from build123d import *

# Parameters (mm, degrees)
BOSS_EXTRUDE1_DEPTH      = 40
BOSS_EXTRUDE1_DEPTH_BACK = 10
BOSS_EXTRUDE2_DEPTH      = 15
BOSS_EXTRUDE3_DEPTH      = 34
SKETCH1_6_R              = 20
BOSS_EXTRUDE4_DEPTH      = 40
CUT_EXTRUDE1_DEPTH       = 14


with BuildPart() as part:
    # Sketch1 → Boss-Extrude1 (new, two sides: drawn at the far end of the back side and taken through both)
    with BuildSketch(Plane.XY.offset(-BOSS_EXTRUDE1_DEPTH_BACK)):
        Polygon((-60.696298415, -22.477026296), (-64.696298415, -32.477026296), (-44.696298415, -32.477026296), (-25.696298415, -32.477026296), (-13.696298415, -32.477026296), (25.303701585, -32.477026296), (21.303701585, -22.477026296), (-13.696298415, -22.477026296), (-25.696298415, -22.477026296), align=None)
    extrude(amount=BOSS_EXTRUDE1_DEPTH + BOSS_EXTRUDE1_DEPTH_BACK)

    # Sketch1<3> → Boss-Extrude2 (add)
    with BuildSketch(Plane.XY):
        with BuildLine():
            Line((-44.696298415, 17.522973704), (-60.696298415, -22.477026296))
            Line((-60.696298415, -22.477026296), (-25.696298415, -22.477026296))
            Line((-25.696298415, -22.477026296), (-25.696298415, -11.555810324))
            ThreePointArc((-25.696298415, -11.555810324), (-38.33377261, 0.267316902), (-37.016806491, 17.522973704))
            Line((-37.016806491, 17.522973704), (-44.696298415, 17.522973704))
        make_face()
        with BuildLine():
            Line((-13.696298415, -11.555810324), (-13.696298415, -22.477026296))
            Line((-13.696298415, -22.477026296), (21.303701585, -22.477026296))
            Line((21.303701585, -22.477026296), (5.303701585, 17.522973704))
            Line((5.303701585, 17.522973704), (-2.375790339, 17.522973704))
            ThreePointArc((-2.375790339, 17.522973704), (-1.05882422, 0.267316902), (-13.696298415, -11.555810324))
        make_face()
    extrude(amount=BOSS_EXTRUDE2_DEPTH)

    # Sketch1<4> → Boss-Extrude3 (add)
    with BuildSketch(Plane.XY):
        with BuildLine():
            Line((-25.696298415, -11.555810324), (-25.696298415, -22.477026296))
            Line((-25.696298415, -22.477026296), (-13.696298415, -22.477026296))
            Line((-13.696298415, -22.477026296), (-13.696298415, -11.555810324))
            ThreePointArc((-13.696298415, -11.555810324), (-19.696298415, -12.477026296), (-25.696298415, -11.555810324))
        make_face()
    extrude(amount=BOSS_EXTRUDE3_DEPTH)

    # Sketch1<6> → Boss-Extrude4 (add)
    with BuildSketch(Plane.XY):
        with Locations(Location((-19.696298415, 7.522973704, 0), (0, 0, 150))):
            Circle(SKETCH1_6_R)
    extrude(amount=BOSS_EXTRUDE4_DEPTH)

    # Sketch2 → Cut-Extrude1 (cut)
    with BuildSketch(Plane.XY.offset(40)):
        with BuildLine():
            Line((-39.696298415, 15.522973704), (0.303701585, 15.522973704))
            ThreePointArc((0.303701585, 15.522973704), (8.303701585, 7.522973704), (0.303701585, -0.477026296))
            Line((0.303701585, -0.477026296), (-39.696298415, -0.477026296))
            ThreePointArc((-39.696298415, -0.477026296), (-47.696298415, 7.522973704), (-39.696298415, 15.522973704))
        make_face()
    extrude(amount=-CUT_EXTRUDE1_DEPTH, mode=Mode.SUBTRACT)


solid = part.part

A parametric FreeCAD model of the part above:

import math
import FreeCAD as App
import Part
import Sketcher


def add_polygon(sketch, points):
    """Adds a closed chain of lines whose ends are joined by coincident constraints."""
    first, n = sketch.GeometryCount, len(points)
    for a, b in zip(points, points[1:] + points[:1]):
        sketch.addGeometry(Part.LineSegment(App.Vector(*a, 0), App.Vector(*b, 0)), False)
    for i in range(n):
        sketch.addConstraint(Sketcher.Constraint("Coincident", first + i, 2, first + (i + 1) % n, 1))

doc = App.newDocument("Part")
params = doc.addObject("Spreadsheet::Sheet", "Params")
for row, (alias, value) in enumerate([
    ("sketch1_width", "90 mm"),
    ("sketch1_width2", "82 mm"),
    ("pad1_length", "40 mm"),
    ("pad1_length2", "10 mm"),
    ("sketch2_radius", "20 mm"),
    ("sketch2_width", "35 mm"),
    ("sketch2_height", "10 mm"),
    ("pad2_length", "15 mm"),
    ("sketch3_radius", "20 mm"),
    ("sketch3_width", "12 mm"),
    ("pad3_length", "34 mm"),
    ("sketch4_diameter", "40 mm"),
    ("pad4_length", "40 mm"),
    ("sketch5_radius", "8 mm"),
    ("sketch5_width", "40 mm"),
    ("pocket1_length", "14 mm"),
], start=1):
    params.set(f"A{row}", alias)
    params.set(f"B{row}", "=" + value)
    params.setAlias(f"B{row}", alias)

body = doc.addObject("PartDesign::Body", "Body")

# Sketch on XY plane
sketch1 = doc.addObject("Sketcher::SketchObject", "Sketch")
body.addObject(sketch1)
sketch1.AttachmentSupport = (doc.XY_Plane, [""])
sketch1.MapMode = "FlatFace"
add_polygon(sketch1, [(-61, -22), (-65, -32), (25, -32), (21, -22)])  # lines 0-3
sketch1.addConstraint([
    Sketcher.Constraint("Horizontal", 1),
    Sketcher.Constraint("Horizontal", 3),
    Sketcher.Constraint("Equal", 0, 2),
    Sketcher.Constraint("DistanceX", 1, 1, 1, 2, 90.0),
    Sketcher.Constraint("DistanceX", 3, 2, 3, 1, 82.0),
    Sketcher.Constraint("DistanceY", 1, 2, 2, 2, 10.0),
    Sketcher.Constraint("DistanceX", 0, 2, -1, 1, 64.696298),
    Sketcher.Constraint("DistanceY", 0, 2, -1, 1, 32.477026),
])
sketch1.setExpression("Constraints[7]", "Params.sketch1_width")
sketch1.setExpression("Constraints[8]", "Params.sketch1_width2")
pad1 = doc.addObject("PartDesign::Pad", "Pad")
body.addObject(pad1)
pad1.Profile = sketch1
pad1.Type = "TwoLengths"
pad1.setExpression("Length", "Params.pad1_length")
pad1.setExpression("Length2", "Params.pad1_length2")

# Sketch on XY plane
sketch2 = doc.addObject("Sketcher::SketchObject", "Sketch001")
body.addObject(sketch2)
sketch2.AttachmentSupport = (doc.XY_Plane, [""])
sketch2.MapMode = "FlatFace"
sketch2.addGeometry([
    Part.LineSegment(App.Vector(-45, 18, 0), App.Vector(-61, -22, 0)),  # 0
    Part.LineSegment(App.Vector(-61, -22, 0), App.Vector(-26, -22, 0)),  # 1
    Part.LineSegment(App.Vector(-26, -22, 0), App.Vector(-26, -12, 0)),  # 2
    Part.ArcOfCircle(Part.Circle(App.Vector(-20, 8, 0), App.Vector(0, 0, 1), 20), math.radians(150), math.radians(253)),  # 3
    Part.LineSegment(App.Vector(-37, 18, 0), App.Vector(-45, 18, 0)),  # 4
    Part.LineSegment(App.Vector(-14, -12, 0), App.Vector(-14, -22, 0)),  # 5
    Part.LineSegment(App.Vector(-14, -22, 0), App.Vector(21, -22, 0)),  # 6
    Part.LineSegment(App.Vector(21, -22, 0), App.Vector(5, 18, 0)),  # 7
    Part.LineSegment(App.Vector(5, 18, 0), App.Vector(-2, 18, 0)),  # 8
    Part.ArcOfCircle(Part.Circle(App.Vector(-20, 8, 0), App.Vector(0, 0, 1), 20), math.radians(-73), math.radians(30)),  # 9
], False)
sketch2.addConstraint([
    Sketcher.Constraint("Coincident", 0, 2, 1, 1),
    Sketcher.Constraint("Coincident", 1, 2, 2, 1),
    Sketcher.Constraint("Coincident", 2, 2, 3, 2),
    Sketcher.Constraint("Coincident", 3, 1, 4, 1),
    Sketcher.Constraint("Coincident", 4, 2, 0, 1),
    Sketcher.Constraint("Coincident", 5, 2, 6, 1),
    Sketcher.Constraint("Coincident", 6, 2, 7, 1),
    Sketcher.Constraint("Coincident", 7, 2, 8, 1),
    Sketcher.Constraint("Coincident", 8, 2, 9, 2),
    Sketcher.Constraint("Coincident", 9, 1, 5, 1),
    Sketcher.Constraint("Horizontal", 1),
    Sketcher.Constraint("Vertical", 2),
    Sketcher.Constraint("Horizontal", 4),
    Sketcher.Constraint("Vertical", 5),
    Sketcher.Constraint("Horizontal", 6),
    Sketcher.Constraint("Horizontal", 8),
    Sketcher.Constraint("Coincident", 9, 3, 3, 3),
    Sketcher.Constraint("Equal", 3, 9),
    Sketcher.Constraint("Horizontal", 1, 2, 5, 2),
    Sketcher.Constraint("Horizontal", 4, 2, 7, 2),
    Sketcher.Constraint("Horizontal", 2, 2, 9, 1),
    Sketcher.Constraint("Equal", 1, 6),
    Sketcher.Constraint("Equal", 4, 8),
    Sketcher.Constraint("Radius", 3, 20.0),
    Sketcher.Constraint("DistanceX", 1, 1, 1, 2, 35.0),
    Sketcher.Constraint("DistanceX", 0, 2, 3, 3, 41.0),
    Sketcher.Constraint("DistanceY", 0, 2, 3, 3, 30.0),
    Sketcher.Constraint("DistanceY", 3, 3, 3, 1, 10.0),
    Sketcher.Constraint("DistanceX", 4, 2, 3, 3, 25.0),
    Sketcher.Constraint("DistanceX", 3, 3, -1, 1, 19.696298),
    Sketcher.Constraint("DistanceY", 2, 2, -1, 1, 11.55581),
])
sketch2.setExpression("Constraints[23]", "Params.sketch2_radius")
sketch2.setExpression("Constraints[24]", "Params.sketch2_width")
sketch2.setExpression("Constraints[27]", "Params.sketch2_height")
pad2 = doc.addObject("PartDesign::Pad", "Pad001")
body.addObject(pad2)
pad2.Profile = sketch2
pad2.setExpression("Length", "Params.pad2_length")

# Sketch on XY plane
sketch3 = doc.addObject("Sketcher::SketchObject", "Sketch002")
body.addObject(sketch3)
sketch3.AttachmentSupport = (doc.XY_Plane, [""])
sketch3.MapMode = "FlatFace"
sketch3.addGeometry([
    Part.LineSegment(App.Vector(-26, -12, 0), App.Vector(-26, -22, 0)),
    Part.LineSegment(App.Vector(-26, -22, 0), App.Vector(-14, -22, 0)),
    Part.LineSegment(App.Vector(-14, -22, 0), App.Vector(-14, -12, 0)),
    Part.ArcOfCircle(Part.Circle(App.Vector(-20, 8, 0), App.Vector(0, 0, 1), 20), math.radians(-107), math.radians(-73)),
], False)
sketch3.addConstraint([
    Sketcher.Constraint("Coincident", 0, 2, 1, 1),
    Sketcher.Constraint("Coincident", 1, 2, 2, 1),
    Sketcher.Constraint("Coincident", 2, 2, 3, 2),
    Sketcher.Constraint("Coincident", 3, 1, 0, 1),
    Sketcher.Constraint("Vertical", 0),
    Sketcher.Constraint("Horizontal", 1),
    Sketcher.Constraint("Vertical", 2),
    Sketcher.Constraint("Horizontal", 2, 2, 3, 1),
    Sketcher.Constraint("Radius", 3, 20.0),
    Sketcher.Constraint("DistanceX", 1, 1, 1, 2, 12.0),
    Sketcher.Constraint("DistanceY", 0, 2, 3, 3, 30.0),
    Sketcher.Constraint("DistanceX", 3, 3, -1, 1, 19.696298),
    Sketcher.Constraint("DistanceY", 2, 2, -1, 1, 11.55581),
])
sketch3.setExpression("Constraints[8]", "Params.sketch3_radius")
sketch3.setExpression("Constraints[9]", "Params.sketch3_width")
pad3 = doc.addObject("PartDesign::Pad", "Pad002")
body.addObject(pad3)
pad3.Profile = sketch3
pad3.setExpression("Length", "Params.pad3_length")

# Sketch on XY plane
sketch4 = doc.addObject("Sketcher::SketchObject", "Sketch003")
body.addObject(sketch4)
sketch4.AttachmentSupport = (doc.XY_Plane, [""])
sketch4.MapMode = "FlatFace"
sketch4.addGeometry(Part.Circle(App.Vector(-20, 8, 0), App.Vector(0, 0, 1), 20), False)
sketch4.addConstraint([
    Sketcher.Constraint("Diameter", 0, 40.0),
    Sketcher.Constraint("DistanceX", 0, 3, -1, 1, 19.696298),
    Sketcher.Constraint("DistanceY", -1, 1, 0, 3, 7.522974),
])
sketch4.setExpression("Constraints[0]", "Params.sketch4_diameter")
pad4 = doc.addObject("PartDesign::Pad", "Pad003")
body.addObject(pad4)
pad4.Profile = sketch4
pad4.setExpression("Length", "Params.pad4_length")

# Sketch on XY plane
sketch5 = doc.addObject("Sketcher::SketchObject", "Sketch004")
body.addObject(sketch5)
sketch5.AttachmentSupport = (doc.XY_Plane, [""])
sketch5.MapMode = "FlatFace"
sketch5.AttachmentOffset = App.Placement(App.Vector(0, 0, 40), App.Rotation())
sketch5.addGeometry([
    Part.LineSegment(App.Vector(0, 16, 0), App.Vector(-40, 16, 0)),
    Part.ArcOfCircle(Part.Circle(App.Vector(-40, 8, 0), App.Vector(0, 0, 1), 8), math.radians(90), math.radians(270)),
    Part.LineSegment(App.Vector(-40, 0, 0), App.Vector(0, 0, 0)),
    Part.ArcOfCircle(Part.Circle(App.Vector(0, 8, 0), App.Vector(0, 0, 1), 8), math.radians(-90), math.radians(90)),
], False)
sketch5.addConstraint([
    Sketcher.Constraint("Tangent", 0, 2, 1, 1),
    Sketcher.Constraint("Tangent", 1, 2, 2, 1),
    Sketcher.Constraint("Tangent", 2, 2, 3, 1),
    Sketcher.Constraint("Tangent", 3, 2, 0, 1),
    Sketcher.Constraint("Horizontal", 0),
    Sketcher.Constraint("Horizontal", 2),
    Sketcher.Constraint("Radius", 1, 8.0),
    Sketcher.Constraint("DistanceX", 0, 2, 0, 1, 40.0),
    Sketcher.Constraint("DistanceX", 1, 3, -1, 1, 39.696298),
    Sketcher.Constraint("DistanceY", -1, 1, 1, 3, 7.522974),
])
sketch5.setExpression("Constraints[6]", "Params.sketch5_radius")
sketch5.setExpression("Constraints[7]", "Params.sketch5_width")
pocket1 = doc.addObject("PartDesign::Pocket", "Pocket")
body.addObject(pocket1)
pocket1.Profile = sketch5
pocket1.setExpression("Length", "Params.pocket1_length")

doc.recompute()
